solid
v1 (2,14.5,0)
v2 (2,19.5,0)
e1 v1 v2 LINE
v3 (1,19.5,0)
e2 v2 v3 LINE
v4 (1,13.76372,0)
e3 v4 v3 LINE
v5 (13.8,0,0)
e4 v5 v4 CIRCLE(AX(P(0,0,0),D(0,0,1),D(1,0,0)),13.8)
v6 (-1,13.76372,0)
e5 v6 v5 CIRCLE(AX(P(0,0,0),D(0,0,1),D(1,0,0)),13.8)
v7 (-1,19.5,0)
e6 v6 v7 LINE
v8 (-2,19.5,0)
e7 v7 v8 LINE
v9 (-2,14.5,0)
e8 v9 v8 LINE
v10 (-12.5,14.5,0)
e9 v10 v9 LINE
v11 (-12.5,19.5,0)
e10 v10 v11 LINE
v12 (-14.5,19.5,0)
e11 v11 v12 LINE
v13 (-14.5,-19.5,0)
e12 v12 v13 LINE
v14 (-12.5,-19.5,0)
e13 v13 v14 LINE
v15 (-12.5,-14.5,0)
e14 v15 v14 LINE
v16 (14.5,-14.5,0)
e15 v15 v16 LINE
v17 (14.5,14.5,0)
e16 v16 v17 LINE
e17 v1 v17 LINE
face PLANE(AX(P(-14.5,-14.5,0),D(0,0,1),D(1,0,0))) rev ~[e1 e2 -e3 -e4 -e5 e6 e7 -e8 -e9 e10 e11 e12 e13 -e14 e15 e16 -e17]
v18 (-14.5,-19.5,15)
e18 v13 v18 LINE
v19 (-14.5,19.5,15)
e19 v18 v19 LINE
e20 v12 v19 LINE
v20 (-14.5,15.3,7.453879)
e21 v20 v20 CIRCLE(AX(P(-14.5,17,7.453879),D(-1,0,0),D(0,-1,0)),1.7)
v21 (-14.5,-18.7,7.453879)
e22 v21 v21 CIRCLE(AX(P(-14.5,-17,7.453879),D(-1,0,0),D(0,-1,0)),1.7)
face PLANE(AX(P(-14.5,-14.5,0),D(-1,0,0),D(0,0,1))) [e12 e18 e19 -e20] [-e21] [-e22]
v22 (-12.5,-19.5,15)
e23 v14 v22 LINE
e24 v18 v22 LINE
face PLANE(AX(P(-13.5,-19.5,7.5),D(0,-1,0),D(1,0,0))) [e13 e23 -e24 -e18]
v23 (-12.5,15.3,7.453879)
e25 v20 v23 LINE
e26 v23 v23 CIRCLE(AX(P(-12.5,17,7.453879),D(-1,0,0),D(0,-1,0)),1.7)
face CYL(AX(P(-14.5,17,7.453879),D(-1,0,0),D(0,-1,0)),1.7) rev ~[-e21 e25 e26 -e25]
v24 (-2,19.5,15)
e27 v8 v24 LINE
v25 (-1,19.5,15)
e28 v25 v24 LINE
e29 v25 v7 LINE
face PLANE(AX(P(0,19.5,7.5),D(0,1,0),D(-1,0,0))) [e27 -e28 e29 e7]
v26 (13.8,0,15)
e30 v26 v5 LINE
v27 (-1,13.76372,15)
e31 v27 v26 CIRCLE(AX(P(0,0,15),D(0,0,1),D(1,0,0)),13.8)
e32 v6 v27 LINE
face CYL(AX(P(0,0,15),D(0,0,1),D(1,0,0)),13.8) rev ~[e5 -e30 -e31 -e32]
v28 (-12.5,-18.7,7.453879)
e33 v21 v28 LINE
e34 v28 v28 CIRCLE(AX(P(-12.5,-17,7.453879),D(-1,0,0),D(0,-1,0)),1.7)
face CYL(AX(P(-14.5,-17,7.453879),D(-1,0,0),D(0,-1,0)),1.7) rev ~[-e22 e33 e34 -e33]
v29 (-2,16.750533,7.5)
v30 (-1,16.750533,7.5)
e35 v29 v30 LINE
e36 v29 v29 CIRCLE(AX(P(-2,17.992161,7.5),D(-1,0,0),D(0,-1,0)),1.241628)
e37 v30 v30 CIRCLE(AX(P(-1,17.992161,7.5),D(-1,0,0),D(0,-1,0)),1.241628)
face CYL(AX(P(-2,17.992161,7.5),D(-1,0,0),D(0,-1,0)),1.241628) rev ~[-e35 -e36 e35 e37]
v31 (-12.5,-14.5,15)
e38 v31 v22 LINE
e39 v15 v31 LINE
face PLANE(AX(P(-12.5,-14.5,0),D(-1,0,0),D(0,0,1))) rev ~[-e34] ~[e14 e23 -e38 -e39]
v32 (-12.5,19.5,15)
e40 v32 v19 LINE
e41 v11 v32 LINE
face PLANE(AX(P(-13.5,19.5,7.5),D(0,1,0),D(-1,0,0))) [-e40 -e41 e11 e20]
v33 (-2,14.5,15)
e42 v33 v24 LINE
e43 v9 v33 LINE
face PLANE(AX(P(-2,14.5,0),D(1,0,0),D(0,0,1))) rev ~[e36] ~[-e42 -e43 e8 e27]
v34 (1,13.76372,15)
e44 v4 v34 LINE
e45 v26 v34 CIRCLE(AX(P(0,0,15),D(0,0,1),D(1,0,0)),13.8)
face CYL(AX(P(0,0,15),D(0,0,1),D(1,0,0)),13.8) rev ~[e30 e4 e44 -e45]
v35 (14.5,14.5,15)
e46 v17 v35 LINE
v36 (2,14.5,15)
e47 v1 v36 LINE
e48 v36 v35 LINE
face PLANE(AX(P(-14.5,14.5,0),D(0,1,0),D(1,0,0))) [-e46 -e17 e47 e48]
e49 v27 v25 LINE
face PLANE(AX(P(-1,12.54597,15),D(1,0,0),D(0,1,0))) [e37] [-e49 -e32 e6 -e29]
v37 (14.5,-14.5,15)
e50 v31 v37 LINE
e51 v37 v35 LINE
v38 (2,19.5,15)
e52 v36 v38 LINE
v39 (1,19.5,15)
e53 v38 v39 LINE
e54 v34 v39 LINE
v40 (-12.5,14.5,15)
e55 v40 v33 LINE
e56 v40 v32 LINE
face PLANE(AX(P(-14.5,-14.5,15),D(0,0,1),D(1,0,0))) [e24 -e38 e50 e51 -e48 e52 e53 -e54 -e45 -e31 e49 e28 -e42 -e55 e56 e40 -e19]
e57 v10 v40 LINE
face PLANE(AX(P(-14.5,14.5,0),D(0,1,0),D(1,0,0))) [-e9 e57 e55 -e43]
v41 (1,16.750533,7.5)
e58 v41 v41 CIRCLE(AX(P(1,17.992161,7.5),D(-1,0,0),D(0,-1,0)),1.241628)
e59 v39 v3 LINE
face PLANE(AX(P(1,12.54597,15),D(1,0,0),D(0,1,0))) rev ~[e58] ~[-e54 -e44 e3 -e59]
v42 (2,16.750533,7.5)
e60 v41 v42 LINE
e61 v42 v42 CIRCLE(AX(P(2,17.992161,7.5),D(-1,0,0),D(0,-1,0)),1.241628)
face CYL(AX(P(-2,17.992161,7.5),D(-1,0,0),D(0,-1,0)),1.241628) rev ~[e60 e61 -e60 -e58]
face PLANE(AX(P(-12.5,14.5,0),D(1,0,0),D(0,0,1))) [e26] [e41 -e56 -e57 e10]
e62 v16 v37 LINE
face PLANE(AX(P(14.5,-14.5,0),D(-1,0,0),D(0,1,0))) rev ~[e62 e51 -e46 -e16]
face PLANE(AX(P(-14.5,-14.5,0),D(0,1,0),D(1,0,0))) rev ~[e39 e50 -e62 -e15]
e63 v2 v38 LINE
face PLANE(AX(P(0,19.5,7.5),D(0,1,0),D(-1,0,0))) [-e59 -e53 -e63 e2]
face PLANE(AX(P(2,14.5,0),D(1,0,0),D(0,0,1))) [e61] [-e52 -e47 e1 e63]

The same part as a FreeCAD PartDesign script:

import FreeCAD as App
import Part
import Sketcher
Q = App.Units.Quantity

doc = App.newDocument("Part")
params = doc.addObject("Spreadsheet::Sheet", "Params")
for row, (alias, value) in enumerate([
    ("sketch1_width", "29 mm"),
    ("pad1_length", "15 mm"),
    ("sketch2_diameter", "27.6 mm"),
    ("pocket1_length", "15 mm"),
    ("sketch3_width", "4 mm"),
    ("sketch3_height", "15 mm"),
    ("pad2_length", "5 mm"),
    ("sketch4_width", "2 mm"),
    ("pocket2_length", "15 mm"),
    ("pocket3_length", "5 mm"),
    ("sketch6_width", "2 mm"),
    ("sketch6_height", "15 mm"),
    ("pad3_length", "5 mm"),
    ("sketch7_width", "2 mm"),
    ("sketch7_height", "15 mm"),
    ("pad4_length", "5 mm"),
    ("sketch8_diameter", "3.4 mm"),
    ("pocket4_length", "5 mm"),
], start=1):
    params.set(f"A{row}", alias)
    params.set(f"B{row}", "=" + value)
    params.setAlias(f"B{row}", alias)

body = doc.addObject("PartDesign::Body", "Body")

sketch1 = doc.addObject("Sketcher::SketchObject", "Sketch")
body.addObject(sketch1)
sketch1.AttachmentSupport = (doc.XY_Plane, [""])
sketch1.MapMode = "FlatFace"
sketch1.addGeometry(Part.LineSegment(App.Vector(-14, 14, 0), App.Vector(-14, -14, 0)), False)
sketch1.addGeometry(Part.LineSegment(App.Vector(-14, -14, 0), App.Vector(14, -14, 0)), False)
sketch1.addGeometry(Part.LineSegment(App.Vector(14, -14, 0), App.Vector(14, 14, 0)), False)
sketch1.addGeometry(Part.LineSegment(App.Vector(14, 14, 0), App.Vector(-14, 14, 0)), False)
sketch1.addConstraint(Sketcher.Constraint("Coincident", 0, 2, 1, 1))
sketch1.addConstraint(Sketcher.Constraint("Coincident", 1, 2, 2, 1))
sketch1.addConstraint(Sketcher.Constraint("Coincident", 2, 2, 3, 1))
sketch1.addConstraint(Sketcher.Constraint("Coincident", 3, 2, 0, 1))
sketch1.addConstraint(Sketcher.Constraint("Vertical", 0))
sketch1.addConstraint(Sketcher.Constraint("Horizontal", 1))
sketch1.addConstraint(Sketcher.Constraint("Vertical", 2))
sketch1.addConstraint(Sketcher.Constraint("Horizontal", 3))
sketch1.addConstraint(Sketcher.Constraint("Symmetric", 0, 2, 2, 2, -1, 1))
sketch1.addConstraint(Sketcher.Constraint("Equal", 3, 0))
sketch1.addConstraint(Sketcher.Constraint("DistanceX", 1, 1, 1, 2, Q("29 mm")))
sketch1.setExpression("Constraints[10]", "Params.sketch1_width")
pad1 = doc.addObject("PartDesign::Pad", "Pad")
body.addObject(pad1)
pad1.Profile = sketch1
pad1.setExpression("Length", "Params.pad1_length")

sketch2 = doc.addObject("Sketcher::SketchObject", "Sketch001")
body.addObject(sketch2)
sketch2.AttachmentSupport = (doc.XY_Plane, [""])
sketch2.MapMode = "FlatFace"
sketch2.AttachmentOffset = App.Placement(App.Vector(0, 0, 15), App.Rotation())
sketch2.addGeometry(Part.Circle(App.Vector(0, 0, 0), App.Vector(0, 0, 1), 14), False)
sketch2.addConstraint(Sketcher.Constraint("Coincident", 0, 3, -1, 1))
sketch2.addConstraint(Sketcher.Constraint("Diameter", 0, Q("27.6 mm")))
sketch2.setExpression("Constraints[1]", "Params.sketch2_diameter")
pocket1 = doc.addObject("PartDesign::Pocket", "Pocket")
body.addObject(pocket1)
pocket1.Profile = sketch2
pocket1.setExpression("Length", "Params.pocket1_length")

sketch3 = doc.addObject("Sketcher::SketchObject", "Sketch002")
body.addObject(sketch3)
sketch3.AttachmentSupport = (doc.XZ_Plane, [""])
sketch3.MapMode = "FlatFace"
sketch3.AttachmentOffset = App.Placement(App.Vector(0, 0, -14.5), App.Rotation())
sketch3.addGeometry(Part.LineSegment(App.Vector(2, 15, 0), App.Vector(2, 0, 0)), False)
sketch3.addGeometry(Part.LineSegment(App.Vector(2, 0, 0), App.Vector(-2, 0, 0)), False)
sketch3.addGeometry(Part.LineSegment(App.Vector(-2, 0, 0), App.Vector(-2, 15, 0)), False)
sketch3.addGeometry(Part.LineSegment(App.Vector(-2, 15, 0), App.Vector(2, 15, 0)), False)
sketch3.addConstraint(Sketcher.Constraint("Coincident", 0, 2, 1, 1))
sketch3.addConstraint(Sketcher.Constraint("Coincident", 1, 2, 2, 1))
sketch3.addConstraint(Sketcher.Constraint("Coincident", 2, 2, 3, 1))
sketch3.addConstraint(Sketcher.Constraint("Coincident", 3, 2, 0, 1))
sketch3.addConstraint(Sketcher.Constraint("Vertical", 0))
sketch3.addConstraint(Sketcher.Constraint("Horizontal", 1))
sketch3.addConstraint(Sketcher.Constraint("Vertical", 2))
sketch3.addConstraint(Sketcher.Constraint("Horizontal", 3))
sketch3.addConstraint(Sketcher.Constraint("Symmetric", 0, 2, 1, 2, -1, 1))
sketch3.addConstraint(Sketcher.Constraint("DistanceX", 1, 2, 1, 1, Q("4 mm")))
sketch3.addConstraint(Sketcher.Constraint("DistanceY", 0, 2, 0, 1, Q("15 mm")))
sketch3.setExpression("Constraints[9]", "Params.sketch3_width")
sketch3.setExpression("Constraints[10]", "Params.sketch3_height")
pad2 = doc.addObject("PartDesign::Pad", "Pad001")
body.addObject(pad2)
pad2.Profile = sketch3
pad2.setExpression("Length", "Params.pad2_length")
pad2.Reversed = True

sketch4 = doc.addObject("Sketcher::SketchObject", "Sketch003")
body.addObject(sketch4)
sketch4.AttachmentSupport = (doc.XY_Plane, [""])
sketch4.MapMode = "FlatFace"
sketch4.AttachmentOffset = App.Placement(App.Vector(0, 0, 15), App.Rotation())
sketch4.addGeometry(Part.LineSegment(App.Vector(-1, 21.6, 0), App.Vector(-1, 12.5, 0)), False)
sketch4.addGeometry(Part.LineSegment(App.Vector(-1, 12.5, 0), App.Vector(1, 12.5, 0)), False)
sketch4.addGeometry(Part.LineSegment(App.Vector(1, 12.5, 0), App.Vector(1, 21.6, 0)), False)
sketch4.addGeometry(Part.LineSegment(App.Vector(1, 21.6, 0), App.Vector(-1, 21.6, 0)), False)
sketch4.addConstraint(Sketcher.Constraint("Coincident", 0, 2, 1, 1))
sketch4.addConstraint(Sketcher.Constraint("Coincident", 1, 2, 2, 1))
sketch4.addConstraint(Sketcher.Constraint("Coincident", 2, 2, 3, 1))
sketch4.addConstraint(Sketcher.Constraint("Coincident", 3, 2, 0, 1))
sketch4.addConstraint(Sketcher.Constraint("Vertical", 0))
sketch4.addConstraint(Sketcher.Constraint("Horizontal", 1))
sketch4.addConstraint(Sketcher.Constraint("Vertical", 2))
sketch4.addConstraint(Sketcher.Constraint("Horizontal", 3))
sketch4.addConstraint(Sketcher.Constraint("DistanceX", 1, 1, 1, 2, Q("2 mm")))
sketch4.addConstraint(Sketcher.Constraint("DistanceX", 0, 2, -1, 1, Q("1 mm")))
sketch4.addConstraint(Sketcher.Constraint("DistanceY", 0, 2, 0, 1, Q("9.016475 mm")))
sketch4.addConstraint(Sketcher.Constraint("DistanceY", -1, 1, 0, 2, Q("12.54597 mm")))
sketch4.setExpression("Constraints[8]", "Params.sketch4_width")
pocket2 = doc.addObject("PartDesign::Pocket", "Pocket001")
body.addObject(pocket2)
pocket2.Profile = sketch4
pocket2.setExpression("Length", "Params.pocket2_length")

sketch5 = doc.addObject("Sketcher::SketchObject", "Sketch004")
body.addObject(sketch5)
sketch5.AttachmentSupport = (doc.YZ_Plane, [""])
sketch5.MapMode = "FlatFace"
sketch5.AttachmentOffset = App.Placement(App.Vector(0, 0, -2), App.Rotation())
sketch5.addGeometry(Part.Circle(App.Vector(18, 7.5, 0), App.Vector(0, 0, 1), 1.2), False)
sketch5.addConstraint(Sketcher.Constraint("DistanceY", -1, 1, 0, 3, Q("7.5 mm")))
sketch5.addConstraint(Sketcher.Constraint("Diameter", 0, Q("2.483256 mm")))
sketch5.addConstraint(Sketcher.Constraint("DistanceX", -1, 1, 0, 3, Q("17.992161 mm")))
pocket3 = doc.addObject("PartDesign::Pocket", "Pocket002")
body.addObject(pocket3)
pocket3.Profile = sketch5
pocket3.setExpression("Length", "Params.pocket3_length")
pocket3.Reversed = True

sketch6 = doc.addObject("Sketcher::SketchObject", "Sketch005")
body.addObject(sketch6)
sketch6.AttachmentSupport = (doc.XZ_Plane, [""])
sketch6.MapMode = "FlatFace"
sketch6.AttachmentOffset = App.Placement(App.Vector(0, 0, -14.5), App.Rotation())
sketch6.addGeometry(Part.LineSegment(App.Vector(-12.5, 15, 0), App.Vector(-12.5, 0, 0)), False)
sketch6.addGeometry(Part.LineSegment(App.Vector(-12.5, 0, 0), App.Vector(-14.5, 0, 0)), False)
sketch6.addGeometry(Part.LineSegment(App.Vector(-14.5, 0, 0), App.Vector(-14.5, 15, 0)), False)
sketch6.addGeometry(Part.LineSegment(App.Vector(-14.5, 15, 0), App.Vector(-12.5, 15, 0)), False)
sketch6.addConstraint(Sketcher.Constraint("Coincident", 0, 2, 1, 1))
sketch6.addConstraint(Sketcher.Constraint("Coincident", 1, 2, 2, 1))
sketch6.addConstraint(Sketcher.Constraint("Coincident", 2, 2, 3, 1))
sketch6.addConstraint(Sketcher.Constraint("Coincident", 3, 2, 0, 1))
sketch6.addConstraint(Sketcher.Constraint("Vertical", 0))
sketch6.addConstraint(Sketcher.Constraint("Horizontal", 1))
sketch6.addConstraint(Sketcher.Constraint("Vertical", 2))
sketch6.addConstraint(Sketcher.Constraint("Horizontal", 3))
sketch6.addConstraint(Sketcher.Constraint("PointOnObject", 0, 2, -1))
sketch6.addConstraint(Sketcher.Constraint("DistanceX", 1, 2, 1, 1, Q("2 mm")))
sketch6.addConstraint(Sketcher.Constraint("DistanceY", 0, 2, 0, 1, Q("15 mm")))
sketch6.addConstraint(Sketcher.Constraint("DistanceX", 0, 2, -1, 1, Q("12.5 mm")))
sketch6.setExpression("Constraints[9]", "Params.sketch6_width")
sketch6.setExpression("Constraints[10]", "Params.sketch6_height")
pad3 = doc.addObject("PartDesign::Pad", "Pad002")
body.addObject(pad3)
pad3.Profile = sketch6
pad3.setExpression("Length", "Params.pad3_length")
pad3.Reversed = True

sketch7 = doc.addObject("Sketcher::SketchObject", "Sketch006")
body.addObject(sketch7)
sketch7.AttachmentSupport = (doc.XZ_Plane, [""])
sketch7.MapMode = "FlatFace"
sketch7.AttachmentOffset = App.Placement(App.Vector(0, 0, 14.5), App.Rotation())
sketch7.addGeometry(Part.LineSegment(App.Vector(-14.5, 15, 0), App.Vector(-14.5, 0, 0)), False)
sketch7.addGeometry(Part.LineSegment(App.Vector(-14.5, 0, 0), App.Vector(-12.5, 0, 0)), False)
sketch7.addGeometry(Part.LineSegment(App.Vector(-12.5, 0, 0), App.Vector(-12.5, 15, 0)), False)
sketch7.addGeometry(Part.LineSegment(App.Vector(-12.5, 15, 0), App.Vector(-14.5, 15, 0)), False)
sketch7.addConstraint(Sketcher.Constraint("Coincident", 0, 2, 1, 1))
sketch7.addConstraint(Sketcher.Constraint("Coincident", 1, 2, 2, 1))
sketch7.addConstraint(Sketcher.Constraint("Coincident", 2, 2, 3, 1))
sketch7.addConstraint(Sketcher.Constraint("Coincident", 3, 2, 0, 1))
sketch7.addConstraint(Sketcher.Constraint("Vertical", 0))
sketch7.addConstraint(Sketcher.Constraint("Horizontal", 1))
sketch7.addConstraint(Sketcher.Constraint("Vertical", 2))
sketch7.addConstraint(Sketcher.Constraint("Horizontal", 3))
sketch7.addConstraint(Sketcher.Constraint("PointOnObject", 0, 2, -1))
sketch7.addConstraint(Sketcher.Constraint("DistanceX", 1, 1, 1, 2, Q("2 mm")))
sketch7.addConstraint(Sketcher.Constraint("DistanceY", 0, 2, 0, 1, Q("15 mm")))
sketch7.addConstraint(Sketcher.Constraint("DistanceX", 0, 2, -1, 1, Q("14.5 mm")))
sketch7.setExpression("Constraints[9]", "Params.sketch7_width")
sketch7.setExpression("Constraints[10]", "Params.sketch7_height")
pad4 = doc.addObject("PartDesign::Pad", "Pad003")
body.addObject(pad4)
pad4.Profile = sketch7
pad4.setExpression("Length", "Params.pad4_length")

sketch8 = doc.addObject("Sketcher::SketchObject", "Sketch007")
body.addObject(sketch8)
sketch8.AttachmentSupport = (doc.YZ_Plane, [""])
sketch8.MapMode = "FlatFace"
sketch8.AttachmentOffset = App.Placement(App.Vector(0, 0, -14.5), App.Rotation())
sketch8.addGeometry(Part.Circle(App.Vector(17, 7.5, 0), App.Vector(0, 0, 1), 1.7), False)
sketch8.addGeometry(Part.Circle(App.Vector(-17, 7.5, 0), App.Vector(0, 0, 1), 1.7), False)
sketch8.addConstraint(Sketcher.Constraint("Equal", 0, 1))
sketch8.addConstraint(Sketcher.Constraint("Symmetric", 0, 3, 1, 3, -2))
sketch8.addConstraint(Sketcher.Constraint("Diameter", 0, Q("3.4 mm")))
sketch8.addConstraint(Sketcher.Constraint("DistanceX", -1, 1, 0, 3, Q("17 mm")))
sketch8.addConstraint(Sketcher.Constraint("DistanceY", -1, 1, 0, 3, Q("7.453879 mm")))
sketch8.setExpression("Constraints[2]", "Params.sketch8_diameter")
pocket4 = doc.addObject("PartDesign::Pocket", "Pocket003")
body.addObject(pocket4)
pocket4.Profile = sketch8
pocket4.setExpression("Length", "Params.pocket4_length")
pocket4.Reversed = True

doc.recompute()
